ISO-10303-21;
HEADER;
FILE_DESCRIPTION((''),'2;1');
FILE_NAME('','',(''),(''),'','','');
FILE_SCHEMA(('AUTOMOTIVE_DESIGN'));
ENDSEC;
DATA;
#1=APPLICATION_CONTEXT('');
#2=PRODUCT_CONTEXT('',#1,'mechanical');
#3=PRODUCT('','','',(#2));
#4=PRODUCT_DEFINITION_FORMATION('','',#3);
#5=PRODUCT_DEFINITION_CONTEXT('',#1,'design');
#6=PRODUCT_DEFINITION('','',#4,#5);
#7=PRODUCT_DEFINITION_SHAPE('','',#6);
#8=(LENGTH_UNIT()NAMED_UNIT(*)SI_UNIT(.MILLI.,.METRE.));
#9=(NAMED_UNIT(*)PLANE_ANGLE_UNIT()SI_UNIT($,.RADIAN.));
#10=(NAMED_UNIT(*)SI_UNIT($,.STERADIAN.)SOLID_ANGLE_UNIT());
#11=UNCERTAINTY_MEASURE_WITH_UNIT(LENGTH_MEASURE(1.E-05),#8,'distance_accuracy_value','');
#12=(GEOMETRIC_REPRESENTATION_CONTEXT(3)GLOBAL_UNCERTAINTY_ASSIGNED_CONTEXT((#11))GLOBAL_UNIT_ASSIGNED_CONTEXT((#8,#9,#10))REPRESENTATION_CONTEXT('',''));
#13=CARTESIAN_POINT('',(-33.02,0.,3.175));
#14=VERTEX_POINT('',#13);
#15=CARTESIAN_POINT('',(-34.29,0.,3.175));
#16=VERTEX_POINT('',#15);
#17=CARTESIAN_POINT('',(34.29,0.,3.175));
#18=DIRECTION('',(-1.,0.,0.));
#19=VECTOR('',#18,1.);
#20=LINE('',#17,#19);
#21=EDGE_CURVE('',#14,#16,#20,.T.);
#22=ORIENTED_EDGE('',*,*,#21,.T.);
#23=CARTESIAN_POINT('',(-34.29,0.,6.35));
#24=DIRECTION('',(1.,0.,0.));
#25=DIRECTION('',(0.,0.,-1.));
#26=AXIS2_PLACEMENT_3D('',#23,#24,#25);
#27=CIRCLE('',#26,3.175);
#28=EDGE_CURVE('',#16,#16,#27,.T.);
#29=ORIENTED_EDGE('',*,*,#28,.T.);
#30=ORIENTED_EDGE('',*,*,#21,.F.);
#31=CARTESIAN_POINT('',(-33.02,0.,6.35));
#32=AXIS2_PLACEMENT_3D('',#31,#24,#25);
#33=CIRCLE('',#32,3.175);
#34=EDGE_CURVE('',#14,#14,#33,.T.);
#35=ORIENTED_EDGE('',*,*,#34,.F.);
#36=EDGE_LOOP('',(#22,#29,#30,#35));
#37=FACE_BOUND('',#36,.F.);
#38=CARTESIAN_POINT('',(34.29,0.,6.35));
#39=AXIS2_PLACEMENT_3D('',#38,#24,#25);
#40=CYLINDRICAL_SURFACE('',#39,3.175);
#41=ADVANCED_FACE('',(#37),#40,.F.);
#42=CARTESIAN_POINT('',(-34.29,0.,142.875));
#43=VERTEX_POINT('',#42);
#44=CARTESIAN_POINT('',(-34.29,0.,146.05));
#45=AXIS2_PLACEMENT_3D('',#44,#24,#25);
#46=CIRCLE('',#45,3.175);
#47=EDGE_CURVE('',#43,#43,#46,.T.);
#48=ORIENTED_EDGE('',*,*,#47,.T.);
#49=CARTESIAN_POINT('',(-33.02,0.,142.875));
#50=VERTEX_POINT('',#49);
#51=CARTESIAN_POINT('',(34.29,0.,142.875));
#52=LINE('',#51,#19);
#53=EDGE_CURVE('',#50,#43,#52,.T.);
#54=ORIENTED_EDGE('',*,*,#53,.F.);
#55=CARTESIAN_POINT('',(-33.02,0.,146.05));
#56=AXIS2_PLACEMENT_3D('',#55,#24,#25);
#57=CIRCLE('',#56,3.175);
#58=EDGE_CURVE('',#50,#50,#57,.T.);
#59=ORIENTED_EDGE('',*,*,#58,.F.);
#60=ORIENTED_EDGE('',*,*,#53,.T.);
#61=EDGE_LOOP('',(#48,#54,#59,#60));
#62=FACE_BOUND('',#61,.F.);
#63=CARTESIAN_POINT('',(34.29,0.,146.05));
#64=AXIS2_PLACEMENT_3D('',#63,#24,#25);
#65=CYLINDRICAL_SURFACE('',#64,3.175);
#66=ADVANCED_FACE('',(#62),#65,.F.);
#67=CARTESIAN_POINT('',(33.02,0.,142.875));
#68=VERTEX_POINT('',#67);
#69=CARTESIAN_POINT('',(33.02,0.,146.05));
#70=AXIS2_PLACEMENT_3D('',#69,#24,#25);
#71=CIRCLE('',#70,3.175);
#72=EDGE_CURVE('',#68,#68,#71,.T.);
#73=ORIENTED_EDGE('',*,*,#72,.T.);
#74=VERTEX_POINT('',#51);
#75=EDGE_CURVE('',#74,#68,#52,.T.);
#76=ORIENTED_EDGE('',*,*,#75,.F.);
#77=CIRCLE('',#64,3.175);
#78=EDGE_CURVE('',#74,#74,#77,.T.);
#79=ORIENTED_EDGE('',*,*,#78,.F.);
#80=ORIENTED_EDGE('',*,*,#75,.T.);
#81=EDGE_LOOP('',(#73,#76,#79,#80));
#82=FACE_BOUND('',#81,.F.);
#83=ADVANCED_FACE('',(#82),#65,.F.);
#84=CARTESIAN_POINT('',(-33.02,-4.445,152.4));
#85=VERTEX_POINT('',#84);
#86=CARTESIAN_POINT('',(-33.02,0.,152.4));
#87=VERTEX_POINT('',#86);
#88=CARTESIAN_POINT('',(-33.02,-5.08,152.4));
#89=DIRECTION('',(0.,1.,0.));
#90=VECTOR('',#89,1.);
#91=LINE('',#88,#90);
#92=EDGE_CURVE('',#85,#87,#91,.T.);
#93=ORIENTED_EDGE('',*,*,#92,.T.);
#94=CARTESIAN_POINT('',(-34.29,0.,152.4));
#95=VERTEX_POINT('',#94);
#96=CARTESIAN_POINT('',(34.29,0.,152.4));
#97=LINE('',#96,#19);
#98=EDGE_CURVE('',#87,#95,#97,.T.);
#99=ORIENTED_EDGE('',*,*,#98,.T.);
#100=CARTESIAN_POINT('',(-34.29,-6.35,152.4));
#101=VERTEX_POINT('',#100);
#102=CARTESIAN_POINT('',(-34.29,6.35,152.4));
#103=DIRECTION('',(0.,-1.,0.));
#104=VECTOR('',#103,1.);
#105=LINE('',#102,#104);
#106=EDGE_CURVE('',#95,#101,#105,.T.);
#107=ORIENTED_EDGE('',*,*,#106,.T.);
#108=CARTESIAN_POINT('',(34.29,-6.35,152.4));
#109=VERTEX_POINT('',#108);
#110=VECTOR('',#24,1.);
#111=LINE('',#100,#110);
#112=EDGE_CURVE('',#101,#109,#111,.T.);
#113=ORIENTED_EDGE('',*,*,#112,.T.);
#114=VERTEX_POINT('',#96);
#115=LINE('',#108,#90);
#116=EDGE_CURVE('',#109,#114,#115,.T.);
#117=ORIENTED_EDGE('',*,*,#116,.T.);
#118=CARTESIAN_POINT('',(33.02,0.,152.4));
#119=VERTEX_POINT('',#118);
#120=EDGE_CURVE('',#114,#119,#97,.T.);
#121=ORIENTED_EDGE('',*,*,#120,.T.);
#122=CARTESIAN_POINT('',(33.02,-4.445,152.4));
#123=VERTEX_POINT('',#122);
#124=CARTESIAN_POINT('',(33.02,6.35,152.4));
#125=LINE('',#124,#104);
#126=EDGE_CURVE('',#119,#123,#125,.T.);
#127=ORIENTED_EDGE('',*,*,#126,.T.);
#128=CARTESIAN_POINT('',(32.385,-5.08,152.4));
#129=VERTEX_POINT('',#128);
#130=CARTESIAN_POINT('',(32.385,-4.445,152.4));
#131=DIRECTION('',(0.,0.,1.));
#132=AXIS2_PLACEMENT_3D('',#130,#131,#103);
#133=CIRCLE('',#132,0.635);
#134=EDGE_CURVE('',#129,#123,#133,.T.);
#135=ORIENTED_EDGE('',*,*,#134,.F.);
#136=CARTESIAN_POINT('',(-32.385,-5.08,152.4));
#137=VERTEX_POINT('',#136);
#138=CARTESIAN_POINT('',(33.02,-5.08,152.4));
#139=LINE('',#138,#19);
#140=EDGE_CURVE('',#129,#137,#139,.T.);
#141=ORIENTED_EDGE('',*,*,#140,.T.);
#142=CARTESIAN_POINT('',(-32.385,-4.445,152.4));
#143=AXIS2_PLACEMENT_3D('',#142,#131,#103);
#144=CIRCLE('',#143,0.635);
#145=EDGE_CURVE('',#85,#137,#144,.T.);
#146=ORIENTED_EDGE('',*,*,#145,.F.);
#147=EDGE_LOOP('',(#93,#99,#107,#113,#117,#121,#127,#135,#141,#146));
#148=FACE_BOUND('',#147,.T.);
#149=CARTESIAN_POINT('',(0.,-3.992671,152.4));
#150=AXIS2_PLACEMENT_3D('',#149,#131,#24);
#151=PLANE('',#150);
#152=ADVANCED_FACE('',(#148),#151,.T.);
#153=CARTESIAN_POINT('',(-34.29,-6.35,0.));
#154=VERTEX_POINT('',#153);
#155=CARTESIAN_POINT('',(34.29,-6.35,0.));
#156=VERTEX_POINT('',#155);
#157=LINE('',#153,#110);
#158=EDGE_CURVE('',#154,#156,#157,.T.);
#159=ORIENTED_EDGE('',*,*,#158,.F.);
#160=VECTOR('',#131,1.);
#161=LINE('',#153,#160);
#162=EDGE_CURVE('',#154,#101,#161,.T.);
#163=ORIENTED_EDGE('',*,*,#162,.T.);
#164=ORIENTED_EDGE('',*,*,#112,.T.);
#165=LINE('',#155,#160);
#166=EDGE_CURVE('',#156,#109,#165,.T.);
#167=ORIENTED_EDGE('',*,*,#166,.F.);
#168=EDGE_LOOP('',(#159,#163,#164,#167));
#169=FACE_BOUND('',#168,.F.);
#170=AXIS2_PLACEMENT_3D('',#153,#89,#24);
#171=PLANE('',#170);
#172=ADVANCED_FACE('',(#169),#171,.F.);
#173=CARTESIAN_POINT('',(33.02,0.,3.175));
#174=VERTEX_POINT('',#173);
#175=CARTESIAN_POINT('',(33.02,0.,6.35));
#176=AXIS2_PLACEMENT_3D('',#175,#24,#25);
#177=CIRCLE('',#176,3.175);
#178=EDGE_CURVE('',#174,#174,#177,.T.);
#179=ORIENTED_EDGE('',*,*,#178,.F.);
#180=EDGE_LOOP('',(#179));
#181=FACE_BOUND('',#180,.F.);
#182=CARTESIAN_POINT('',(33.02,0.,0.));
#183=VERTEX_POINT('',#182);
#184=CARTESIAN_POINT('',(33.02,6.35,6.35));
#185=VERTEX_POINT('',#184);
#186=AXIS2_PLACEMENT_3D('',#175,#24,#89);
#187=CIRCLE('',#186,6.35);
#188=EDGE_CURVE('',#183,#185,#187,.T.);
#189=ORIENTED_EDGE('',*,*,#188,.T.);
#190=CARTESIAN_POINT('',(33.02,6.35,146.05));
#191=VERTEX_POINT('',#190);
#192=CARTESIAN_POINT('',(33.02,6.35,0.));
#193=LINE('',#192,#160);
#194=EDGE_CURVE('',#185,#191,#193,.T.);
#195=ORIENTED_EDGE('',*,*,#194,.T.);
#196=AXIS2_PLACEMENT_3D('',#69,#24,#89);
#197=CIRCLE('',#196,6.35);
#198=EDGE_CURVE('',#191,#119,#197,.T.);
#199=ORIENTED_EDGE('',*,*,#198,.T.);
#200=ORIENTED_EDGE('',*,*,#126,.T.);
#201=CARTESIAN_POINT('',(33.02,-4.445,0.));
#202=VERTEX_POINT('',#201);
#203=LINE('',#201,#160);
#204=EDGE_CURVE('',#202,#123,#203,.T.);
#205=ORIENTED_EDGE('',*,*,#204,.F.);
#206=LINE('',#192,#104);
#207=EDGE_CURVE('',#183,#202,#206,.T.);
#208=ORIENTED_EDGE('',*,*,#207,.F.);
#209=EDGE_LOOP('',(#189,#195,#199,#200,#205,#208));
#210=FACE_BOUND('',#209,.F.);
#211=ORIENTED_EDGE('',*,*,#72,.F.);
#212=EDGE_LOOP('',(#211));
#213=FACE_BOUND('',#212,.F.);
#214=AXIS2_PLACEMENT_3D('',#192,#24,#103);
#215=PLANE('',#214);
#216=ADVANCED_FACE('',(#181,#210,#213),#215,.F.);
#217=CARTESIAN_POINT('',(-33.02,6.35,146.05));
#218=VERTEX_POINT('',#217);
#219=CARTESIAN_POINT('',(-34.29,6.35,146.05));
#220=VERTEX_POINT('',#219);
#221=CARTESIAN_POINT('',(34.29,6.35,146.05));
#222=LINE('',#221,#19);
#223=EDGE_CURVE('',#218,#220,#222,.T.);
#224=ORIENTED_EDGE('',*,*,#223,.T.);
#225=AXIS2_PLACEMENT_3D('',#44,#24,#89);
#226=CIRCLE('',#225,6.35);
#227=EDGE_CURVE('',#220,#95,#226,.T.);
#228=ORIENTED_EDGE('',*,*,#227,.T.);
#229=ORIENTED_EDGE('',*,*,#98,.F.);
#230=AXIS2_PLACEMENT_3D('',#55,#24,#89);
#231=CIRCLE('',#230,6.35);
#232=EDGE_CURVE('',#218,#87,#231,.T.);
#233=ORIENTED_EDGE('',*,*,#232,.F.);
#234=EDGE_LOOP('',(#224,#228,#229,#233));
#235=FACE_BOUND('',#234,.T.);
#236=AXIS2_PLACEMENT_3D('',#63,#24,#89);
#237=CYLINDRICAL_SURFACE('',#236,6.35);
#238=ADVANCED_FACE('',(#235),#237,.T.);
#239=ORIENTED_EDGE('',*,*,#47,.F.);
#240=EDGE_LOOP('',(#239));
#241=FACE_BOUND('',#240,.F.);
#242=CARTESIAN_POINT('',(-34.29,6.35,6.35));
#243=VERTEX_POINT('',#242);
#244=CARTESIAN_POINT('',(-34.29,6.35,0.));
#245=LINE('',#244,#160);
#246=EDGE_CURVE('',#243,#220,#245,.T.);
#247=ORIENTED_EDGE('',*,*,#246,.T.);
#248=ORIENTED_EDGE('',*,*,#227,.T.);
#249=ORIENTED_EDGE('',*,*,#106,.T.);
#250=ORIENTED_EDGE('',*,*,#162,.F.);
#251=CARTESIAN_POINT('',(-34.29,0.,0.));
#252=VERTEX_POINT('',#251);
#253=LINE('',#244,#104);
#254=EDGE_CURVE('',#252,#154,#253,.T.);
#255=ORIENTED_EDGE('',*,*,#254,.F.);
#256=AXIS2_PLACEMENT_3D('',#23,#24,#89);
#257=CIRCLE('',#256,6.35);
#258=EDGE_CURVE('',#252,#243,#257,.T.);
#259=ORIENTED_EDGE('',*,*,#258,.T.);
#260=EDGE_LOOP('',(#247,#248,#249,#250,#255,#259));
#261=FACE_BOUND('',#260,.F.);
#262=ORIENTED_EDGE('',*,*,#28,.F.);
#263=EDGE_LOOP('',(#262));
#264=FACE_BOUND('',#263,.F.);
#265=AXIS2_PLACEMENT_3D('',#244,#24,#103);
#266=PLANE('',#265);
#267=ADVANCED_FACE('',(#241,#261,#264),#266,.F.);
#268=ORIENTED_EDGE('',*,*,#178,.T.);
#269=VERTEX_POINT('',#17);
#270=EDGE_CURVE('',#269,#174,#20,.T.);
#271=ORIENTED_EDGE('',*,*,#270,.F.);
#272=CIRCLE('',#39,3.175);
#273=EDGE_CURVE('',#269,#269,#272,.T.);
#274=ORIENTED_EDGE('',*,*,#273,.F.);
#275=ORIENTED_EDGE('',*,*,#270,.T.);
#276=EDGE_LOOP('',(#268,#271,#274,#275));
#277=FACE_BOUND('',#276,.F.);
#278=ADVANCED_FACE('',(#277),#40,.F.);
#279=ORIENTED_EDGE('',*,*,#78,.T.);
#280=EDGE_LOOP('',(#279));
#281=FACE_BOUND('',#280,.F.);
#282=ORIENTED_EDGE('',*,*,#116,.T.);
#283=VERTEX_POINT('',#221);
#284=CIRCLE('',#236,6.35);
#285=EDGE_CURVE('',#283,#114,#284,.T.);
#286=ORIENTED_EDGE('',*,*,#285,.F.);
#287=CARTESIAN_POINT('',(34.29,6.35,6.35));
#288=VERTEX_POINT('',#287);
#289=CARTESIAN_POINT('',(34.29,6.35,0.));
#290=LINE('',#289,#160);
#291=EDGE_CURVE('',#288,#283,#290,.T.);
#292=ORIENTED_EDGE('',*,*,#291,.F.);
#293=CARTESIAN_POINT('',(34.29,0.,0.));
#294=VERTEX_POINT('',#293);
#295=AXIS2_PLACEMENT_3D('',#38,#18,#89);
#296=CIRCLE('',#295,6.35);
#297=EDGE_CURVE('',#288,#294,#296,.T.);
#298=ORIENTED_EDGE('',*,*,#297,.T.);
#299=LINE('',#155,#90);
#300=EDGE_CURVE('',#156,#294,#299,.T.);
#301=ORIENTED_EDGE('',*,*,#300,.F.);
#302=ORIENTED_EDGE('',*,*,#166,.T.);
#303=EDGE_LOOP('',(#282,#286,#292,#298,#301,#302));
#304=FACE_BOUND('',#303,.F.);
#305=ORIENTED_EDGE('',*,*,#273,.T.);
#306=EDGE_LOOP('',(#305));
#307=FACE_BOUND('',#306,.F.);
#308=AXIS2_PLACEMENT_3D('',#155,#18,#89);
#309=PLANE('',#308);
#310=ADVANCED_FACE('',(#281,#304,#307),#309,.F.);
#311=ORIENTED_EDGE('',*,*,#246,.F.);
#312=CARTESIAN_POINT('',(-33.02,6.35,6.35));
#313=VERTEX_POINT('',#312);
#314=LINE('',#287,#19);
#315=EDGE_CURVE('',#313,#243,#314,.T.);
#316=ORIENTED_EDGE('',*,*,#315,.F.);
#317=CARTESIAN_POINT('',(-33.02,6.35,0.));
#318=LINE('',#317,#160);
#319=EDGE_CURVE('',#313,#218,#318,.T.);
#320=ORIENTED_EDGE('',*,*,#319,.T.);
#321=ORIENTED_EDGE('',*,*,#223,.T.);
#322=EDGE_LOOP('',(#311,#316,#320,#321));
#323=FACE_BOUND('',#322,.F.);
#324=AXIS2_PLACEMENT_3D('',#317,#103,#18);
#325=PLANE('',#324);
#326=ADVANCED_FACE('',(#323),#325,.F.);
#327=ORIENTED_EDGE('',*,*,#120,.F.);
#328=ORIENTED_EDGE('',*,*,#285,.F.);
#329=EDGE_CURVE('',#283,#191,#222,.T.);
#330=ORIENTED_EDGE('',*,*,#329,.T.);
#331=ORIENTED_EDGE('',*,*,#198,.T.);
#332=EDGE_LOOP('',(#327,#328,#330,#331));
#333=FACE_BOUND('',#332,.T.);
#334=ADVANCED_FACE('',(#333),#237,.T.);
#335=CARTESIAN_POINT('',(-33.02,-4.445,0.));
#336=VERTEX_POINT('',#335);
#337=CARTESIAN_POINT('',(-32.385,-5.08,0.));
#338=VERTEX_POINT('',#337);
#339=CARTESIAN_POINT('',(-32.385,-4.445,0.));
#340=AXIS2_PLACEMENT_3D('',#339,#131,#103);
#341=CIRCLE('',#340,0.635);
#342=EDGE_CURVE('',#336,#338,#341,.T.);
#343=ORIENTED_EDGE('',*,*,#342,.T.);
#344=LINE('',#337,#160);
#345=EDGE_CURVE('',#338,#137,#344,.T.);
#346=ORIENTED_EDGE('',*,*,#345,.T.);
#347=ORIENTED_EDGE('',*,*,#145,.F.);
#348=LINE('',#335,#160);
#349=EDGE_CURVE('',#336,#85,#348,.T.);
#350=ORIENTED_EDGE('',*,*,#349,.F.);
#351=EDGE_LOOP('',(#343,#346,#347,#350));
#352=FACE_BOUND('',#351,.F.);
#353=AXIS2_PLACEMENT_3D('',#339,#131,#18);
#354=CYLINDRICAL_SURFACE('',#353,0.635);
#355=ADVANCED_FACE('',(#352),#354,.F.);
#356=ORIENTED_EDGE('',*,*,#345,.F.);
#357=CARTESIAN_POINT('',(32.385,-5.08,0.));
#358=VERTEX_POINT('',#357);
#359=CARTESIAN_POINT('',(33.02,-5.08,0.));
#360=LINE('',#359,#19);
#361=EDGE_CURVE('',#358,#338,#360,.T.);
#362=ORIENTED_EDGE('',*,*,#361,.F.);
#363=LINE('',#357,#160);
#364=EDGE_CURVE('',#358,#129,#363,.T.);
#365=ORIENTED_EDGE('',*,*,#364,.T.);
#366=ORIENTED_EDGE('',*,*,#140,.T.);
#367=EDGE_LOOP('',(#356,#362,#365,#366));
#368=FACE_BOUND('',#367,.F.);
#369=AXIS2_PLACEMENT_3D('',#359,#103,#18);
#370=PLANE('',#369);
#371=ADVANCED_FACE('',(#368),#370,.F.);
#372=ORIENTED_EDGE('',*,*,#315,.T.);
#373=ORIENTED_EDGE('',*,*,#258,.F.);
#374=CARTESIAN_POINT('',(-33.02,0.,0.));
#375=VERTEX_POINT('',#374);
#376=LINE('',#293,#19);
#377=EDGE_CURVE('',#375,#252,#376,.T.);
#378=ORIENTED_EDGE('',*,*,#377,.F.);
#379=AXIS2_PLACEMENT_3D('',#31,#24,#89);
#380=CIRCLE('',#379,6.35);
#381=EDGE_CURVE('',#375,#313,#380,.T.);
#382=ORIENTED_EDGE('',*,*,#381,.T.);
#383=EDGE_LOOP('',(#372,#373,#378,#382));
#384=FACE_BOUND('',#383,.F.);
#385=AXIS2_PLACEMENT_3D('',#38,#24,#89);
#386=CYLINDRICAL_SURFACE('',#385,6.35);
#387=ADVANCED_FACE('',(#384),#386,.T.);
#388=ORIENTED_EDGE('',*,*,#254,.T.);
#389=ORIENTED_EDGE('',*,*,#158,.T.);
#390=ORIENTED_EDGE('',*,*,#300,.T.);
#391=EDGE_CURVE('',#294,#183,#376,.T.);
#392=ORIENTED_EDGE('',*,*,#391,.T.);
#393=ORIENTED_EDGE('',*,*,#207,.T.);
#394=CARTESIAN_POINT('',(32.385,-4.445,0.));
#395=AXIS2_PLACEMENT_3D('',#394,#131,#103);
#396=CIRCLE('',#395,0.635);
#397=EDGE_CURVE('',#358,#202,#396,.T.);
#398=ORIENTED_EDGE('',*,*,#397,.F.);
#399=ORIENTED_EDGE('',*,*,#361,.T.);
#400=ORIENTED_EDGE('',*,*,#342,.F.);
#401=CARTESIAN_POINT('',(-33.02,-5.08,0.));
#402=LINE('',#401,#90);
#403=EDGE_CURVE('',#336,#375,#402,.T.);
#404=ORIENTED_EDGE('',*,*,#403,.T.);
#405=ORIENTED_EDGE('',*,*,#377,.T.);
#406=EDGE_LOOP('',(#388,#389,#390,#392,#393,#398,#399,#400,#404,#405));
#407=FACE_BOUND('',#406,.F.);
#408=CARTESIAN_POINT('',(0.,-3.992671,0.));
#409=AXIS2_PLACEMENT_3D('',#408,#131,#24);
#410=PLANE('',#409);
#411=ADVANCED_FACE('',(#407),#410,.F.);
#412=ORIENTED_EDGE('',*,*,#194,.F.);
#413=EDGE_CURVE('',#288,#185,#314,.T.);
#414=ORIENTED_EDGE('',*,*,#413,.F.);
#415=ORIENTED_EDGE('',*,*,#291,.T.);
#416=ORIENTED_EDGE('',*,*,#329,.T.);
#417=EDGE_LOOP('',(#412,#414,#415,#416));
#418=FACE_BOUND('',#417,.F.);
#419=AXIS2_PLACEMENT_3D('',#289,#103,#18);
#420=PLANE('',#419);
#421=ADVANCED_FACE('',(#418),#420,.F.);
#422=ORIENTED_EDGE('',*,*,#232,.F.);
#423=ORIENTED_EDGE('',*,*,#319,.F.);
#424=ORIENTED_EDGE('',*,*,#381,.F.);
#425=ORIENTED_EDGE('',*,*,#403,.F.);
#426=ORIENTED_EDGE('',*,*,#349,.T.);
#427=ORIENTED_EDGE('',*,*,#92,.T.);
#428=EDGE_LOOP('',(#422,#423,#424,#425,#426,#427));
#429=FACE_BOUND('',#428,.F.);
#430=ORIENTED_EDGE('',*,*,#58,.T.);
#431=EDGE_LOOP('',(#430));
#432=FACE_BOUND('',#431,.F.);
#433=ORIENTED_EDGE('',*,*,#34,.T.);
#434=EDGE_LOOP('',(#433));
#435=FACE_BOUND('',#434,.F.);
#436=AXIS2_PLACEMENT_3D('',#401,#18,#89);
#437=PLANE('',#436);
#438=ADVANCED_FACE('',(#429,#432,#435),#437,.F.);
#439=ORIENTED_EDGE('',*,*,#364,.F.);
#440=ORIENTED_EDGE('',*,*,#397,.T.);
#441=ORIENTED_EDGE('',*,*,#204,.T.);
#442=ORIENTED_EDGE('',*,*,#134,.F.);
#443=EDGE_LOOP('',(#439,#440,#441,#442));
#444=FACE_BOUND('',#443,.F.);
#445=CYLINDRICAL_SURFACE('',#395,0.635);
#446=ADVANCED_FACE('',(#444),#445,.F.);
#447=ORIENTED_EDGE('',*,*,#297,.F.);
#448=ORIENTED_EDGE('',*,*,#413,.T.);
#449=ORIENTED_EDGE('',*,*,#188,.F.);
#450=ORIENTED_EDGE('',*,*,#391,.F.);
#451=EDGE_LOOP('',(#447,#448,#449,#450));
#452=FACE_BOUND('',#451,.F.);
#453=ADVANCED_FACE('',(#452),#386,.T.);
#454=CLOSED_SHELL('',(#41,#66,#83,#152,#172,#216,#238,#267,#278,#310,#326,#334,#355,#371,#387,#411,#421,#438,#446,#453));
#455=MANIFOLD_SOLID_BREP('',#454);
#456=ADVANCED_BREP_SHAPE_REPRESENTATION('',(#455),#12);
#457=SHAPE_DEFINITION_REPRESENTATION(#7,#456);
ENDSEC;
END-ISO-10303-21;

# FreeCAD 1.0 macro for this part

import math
import FreeCAD as App
import Part
import Sketcher

V = App.Vector
Q = App.Units.Quantity


def edges_at(feature, points):
    """Names of the edges that pass closest to the given points."""
    edges = feature.Shape.Edges
    near = lambda p: min(range(len(edges)), key=lambda i: edges[i].distToShape(Part.Vertex(*p))[0])
    return sorted({f"Edge{near(p) + 1}" for p in points})


def add_polygon(sketch, points):
    """Adds a closed chain of lines whose ends are joined by coincident constraints."""
    first, n = sketch.GeometryCount, len(points)
    for a, b in zip(points, points[1:] + points[:1]):
        sketch.addGeometry(Part.LineSegment(App.Vector(*a, 0), App.Vector(*b, 0)), False)
    for i in range(n):
        sketch.addConstraint(Sketcher.Constraint("Coincident", first + i, 2, first + (i + 1) % n, 1))

doc = App.newDocument("Part")
body = doc.addObject("PartDesign::Body", "Body")

sketch1 = body.newObject("Sketcher::SketchObject", "Sketch")
sketch1.AttachmentSupport = (doc.getObject("XY_Plane"), [""])
sketch1.MapMode = "FlatFace"
add_polygon(sketch1, [(-34.3, 6.3), (-34.3, -6.3), (34.3, -6.3), (34.3, 6.3), (33, 6.3), (33, -5.1), (-33, -5.1), (-33, 6.3)])
sketch1.addConstraint([
    Sketcher.Constraint("Vertical", 0),
    Sketcher.Constraint("Horizontal", 1),
    Sketcher.Constraint("Vertical", 2),
    Sketcher.Constraint("Horizontal", 3),
    Sketcher.Constraint("Vertical", 4),
    Sketcher.Constraint("Horizontal", 5),
    Sketcher.Constraint("Vertical", 6),
    Sketcher.Constraint("Horizontal", 7),
    Sketcher.Constraint("Symmetric", 0, 2, 2, 2, -1, 1),
    Sketcher.Constraint("Symmetric", 3, 2, 6, 2, -2),
    Sketcher.Constraint("DistanceX", 1, 1, 1, 2, Q("2.7 in")),
    Sketcher.Constraint("DistanceX", 5, 2, 5, 1, Q("2.6 in")),
    Sketcher.Constraint("DistanceY", 0, 2, 0, 1, Q("0.5 in")),
    Sketcher.Constraint("DistanceY", 4, 2, 4, 1, Q("0.45 in")),
])
pad1 = body.newObject("PartDesign::Pad", "Pad")
pad1.Profile = sketch1
pad1.Length = Q("6 in")

sketch2 = body.newObject("Sketcher::SketchObject", "Sketch001")
sketch2.AttachmentSupport = (doc.getObject("YZ_Plane"), [""])
sketch2.MapMode = "FlatFace"
sketch2.AttachmentOffset = App.Placement(V(0, 0, 1.35 * 25.4), App.Rotation())
sketch2.addGeometry([
    Part.Circle(V(0, 146.1, 0), V(0, 0, 1), 3.2),
    Part.Circle(V(0, 6.3, 0), V(0, 0, 1), 3.2),
    Part.LineSegment(V(6.3, 152.4, 0), V(0, 152.4, 0)),
    Part.ArcOfCircle(Part.Circle(V(0, 146.1, 0), V(0, 0, 1), 6.3), math.radians(0), math.radians(90)),
    Part.LineSegment(V(6.3, 146.1, 0), V(6.3, 152.4, 0)),
    Part.LineSegment(V(0, 0, 0), V(6.3, 0, 0)),
    Part.LineSegment(V(6.3, 0, 0), V(6.3, 6.3, 0)),
    Part.ArcOfCircle(Part.Circle(V(0, 6.3, 0), V(0, 0, 1), 6.3), math.radians(-90), math.radians(0)),
], False)
sketch2.addConstraint([
    Sketcher.Constraint("Tangent", 2, 2, 3, 2),
    Sketcher.Constraint("Tangent", 3, 1, 4, 1),
    Sketcher.Constraint("Coincident", 4, 2, 2, 1),
    Sketcher.Constraint("Coincident", 5, 2, 6, 1),
    Sketcher.Constraint("Tangent", 6, 2, 7, 2),
    Sketcher.Constraint("Tangent", 7, 1, 5, 1),
    Sketcher.Constraint("Horizontal", 2),
    Sketcher.Constraint("Vertical", 4),
    Sketcher.Constraint("Horizontal", 5),
    Sketcher.Constraint("Vertical", 6),
    Sketcher.Constraint("Coincident", 7, 1, -1, 1),
    Sketcher.Constraint("Coincident", 3, 3, 0, 3),
    Sketcher.Constraint("Coincident", 7, 3, 1, 3),
    Sketcher.Constraint("Equal", 0, 1),
    Sketcher.Constraint("Equal", 3, 7),
    Sketcher.Constraint("PointOnObject", 0, 3, -2),
    Sketcher.Constraint("Diameter", 0, Q("0.25 in")),
    Sketcher.Constraint("Radius", 3, Q("0.25 in")),
    Sketcher.Constraint("DistanceY", -1, 1, 2, 2, Q("6 in")),
])
pocket1 = body.newObject("PartDesign::Pocket", "Pocket")
pocket1.Profile = sketch2
pocket1.Type = "ThroughAll"
doc.recompute()

fillet = body.newObject("PartDesign::Fillet", "Fillet")
fillet.Base = (pocket1, edges_at(pocket1, [(-33.02, -5.08, 76.2), (33.02, -5.08, 76.2)]))
fillet.Radius = Q("0.025 in")

doc.recompute()
